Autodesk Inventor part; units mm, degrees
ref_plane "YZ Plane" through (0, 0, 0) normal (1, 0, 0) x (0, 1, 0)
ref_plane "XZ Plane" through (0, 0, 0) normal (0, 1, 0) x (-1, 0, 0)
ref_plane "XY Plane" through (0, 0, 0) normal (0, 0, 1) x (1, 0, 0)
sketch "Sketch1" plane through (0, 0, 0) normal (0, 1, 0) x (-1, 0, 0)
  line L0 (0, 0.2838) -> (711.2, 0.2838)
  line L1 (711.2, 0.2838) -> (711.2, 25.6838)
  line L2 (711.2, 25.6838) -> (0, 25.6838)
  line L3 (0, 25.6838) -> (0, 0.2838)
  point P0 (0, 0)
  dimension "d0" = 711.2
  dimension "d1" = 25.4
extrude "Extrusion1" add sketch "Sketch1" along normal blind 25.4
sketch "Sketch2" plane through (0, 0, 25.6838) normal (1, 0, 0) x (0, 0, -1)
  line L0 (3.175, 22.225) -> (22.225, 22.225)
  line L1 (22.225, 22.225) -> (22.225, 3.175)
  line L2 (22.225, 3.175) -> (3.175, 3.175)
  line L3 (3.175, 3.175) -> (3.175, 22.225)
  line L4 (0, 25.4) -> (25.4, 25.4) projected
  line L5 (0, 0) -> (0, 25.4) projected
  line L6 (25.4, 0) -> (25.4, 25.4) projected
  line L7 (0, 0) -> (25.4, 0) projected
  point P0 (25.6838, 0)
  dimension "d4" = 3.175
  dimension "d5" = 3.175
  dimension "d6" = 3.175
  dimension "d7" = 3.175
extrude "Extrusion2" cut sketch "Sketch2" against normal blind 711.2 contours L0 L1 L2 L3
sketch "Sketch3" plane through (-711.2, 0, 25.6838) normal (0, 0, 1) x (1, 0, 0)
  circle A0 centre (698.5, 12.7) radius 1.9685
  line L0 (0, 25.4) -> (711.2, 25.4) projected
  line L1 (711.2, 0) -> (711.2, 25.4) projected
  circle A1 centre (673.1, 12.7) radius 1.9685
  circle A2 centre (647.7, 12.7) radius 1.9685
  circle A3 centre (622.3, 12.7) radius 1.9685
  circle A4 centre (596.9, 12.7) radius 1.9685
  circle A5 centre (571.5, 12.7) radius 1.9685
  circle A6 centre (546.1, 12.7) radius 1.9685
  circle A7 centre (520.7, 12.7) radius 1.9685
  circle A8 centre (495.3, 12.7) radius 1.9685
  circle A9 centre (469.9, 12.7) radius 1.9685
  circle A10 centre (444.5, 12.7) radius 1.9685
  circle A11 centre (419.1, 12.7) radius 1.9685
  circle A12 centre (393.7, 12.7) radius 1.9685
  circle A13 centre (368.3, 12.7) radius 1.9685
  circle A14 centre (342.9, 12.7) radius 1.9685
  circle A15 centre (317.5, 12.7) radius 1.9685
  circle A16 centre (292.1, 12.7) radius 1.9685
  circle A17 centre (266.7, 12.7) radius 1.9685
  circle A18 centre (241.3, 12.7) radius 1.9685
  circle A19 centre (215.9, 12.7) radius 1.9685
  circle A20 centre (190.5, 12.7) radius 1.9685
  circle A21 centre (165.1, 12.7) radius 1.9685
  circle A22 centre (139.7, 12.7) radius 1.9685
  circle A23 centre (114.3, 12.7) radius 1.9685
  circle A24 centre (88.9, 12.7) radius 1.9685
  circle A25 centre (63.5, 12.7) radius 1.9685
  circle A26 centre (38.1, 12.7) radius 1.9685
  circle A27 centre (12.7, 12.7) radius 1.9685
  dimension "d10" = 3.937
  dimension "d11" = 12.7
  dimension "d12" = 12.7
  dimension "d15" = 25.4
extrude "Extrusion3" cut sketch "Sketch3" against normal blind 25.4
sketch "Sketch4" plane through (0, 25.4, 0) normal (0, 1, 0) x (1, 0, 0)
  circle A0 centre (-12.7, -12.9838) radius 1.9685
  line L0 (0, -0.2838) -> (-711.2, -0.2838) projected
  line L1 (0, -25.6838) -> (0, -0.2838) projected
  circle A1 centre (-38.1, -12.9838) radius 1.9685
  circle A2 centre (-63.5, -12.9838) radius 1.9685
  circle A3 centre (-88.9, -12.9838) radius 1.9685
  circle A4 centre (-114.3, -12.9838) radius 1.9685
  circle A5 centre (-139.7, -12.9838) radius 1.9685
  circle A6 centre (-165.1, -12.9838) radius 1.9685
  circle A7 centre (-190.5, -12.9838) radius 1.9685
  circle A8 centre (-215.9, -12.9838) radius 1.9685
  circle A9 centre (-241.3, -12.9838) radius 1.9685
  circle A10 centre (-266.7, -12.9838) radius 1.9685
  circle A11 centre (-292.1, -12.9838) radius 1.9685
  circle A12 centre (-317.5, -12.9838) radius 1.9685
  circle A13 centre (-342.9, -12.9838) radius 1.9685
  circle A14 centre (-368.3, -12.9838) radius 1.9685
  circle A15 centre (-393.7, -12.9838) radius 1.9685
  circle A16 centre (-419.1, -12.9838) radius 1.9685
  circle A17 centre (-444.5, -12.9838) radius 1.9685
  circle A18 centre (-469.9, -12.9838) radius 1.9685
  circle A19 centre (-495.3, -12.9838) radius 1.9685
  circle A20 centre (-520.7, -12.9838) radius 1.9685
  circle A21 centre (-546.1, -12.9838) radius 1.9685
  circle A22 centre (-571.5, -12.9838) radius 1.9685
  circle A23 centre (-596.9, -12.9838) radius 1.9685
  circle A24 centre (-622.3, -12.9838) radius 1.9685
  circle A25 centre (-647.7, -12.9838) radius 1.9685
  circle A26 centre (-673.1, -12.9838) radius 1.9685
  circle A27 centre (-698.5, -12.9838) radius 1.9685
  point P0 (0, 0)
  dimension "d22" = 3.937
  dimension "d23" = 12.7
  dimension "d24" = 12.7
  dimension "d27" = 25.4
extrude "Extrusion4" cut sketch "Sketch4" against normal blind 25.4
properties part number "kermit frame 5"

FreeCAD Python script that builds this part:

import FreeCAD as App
import Part
import Sketcher

V = App.Vector
Q = App.Units.Quantity


def add_polygon(sketch, points):
    """Adds a closed chain of lines whose ends are joined by coincident constraints."""
    first, n = sketch.GeometryCount, len(points)
    for a, b in zip(points, points[1:] + points[:1]):
        sketch.addGeometry(Part.LineSegment(App.Vector(*a, 0), App.Vector(*b, 0)), False)
    for i in range(n):
        sketch.addConstraint(Sketcher.Constraint("Coincident", first + i, 2, first + (i + 1) % n, 1))

doc = App.newDocument("Part")
body = doc.addObject("PartDesign::Body", "Body")

# Sketch on XZ plane
sketch1 = body.newObject("Sketcher::SketchObject", "Sketch")
sketch1.AttachmentSupport = (doc.getObject("XZ_Plane"), [""])
sketch1.MapMode = "FlatFace"
add_polygon(sketch1, [(0, 25.6838), (0, 0.2838), (-711.2, 0.2838), (-711.2, 25.6838)])  # lines 0-3
sketch1.addConstraint([
    Sketcher.Constraint("Vertical", 0),
    Sketcher.Constraint("Horizontal", 1),
    Sketcher.Constraint("Vertical", 2),
    Sketcher.Constraint("Horizontal", 3),
    Sketcher.Constraint("PointOnObject", 0, 2, -2),
    Sketcher.Constraint("DistanceX", 1, 2, 1, 1, Q("28 in")),
    Sketcher.Constraint("DistanceY", 0, 2, 0, 1, Q("1 in")),
    Sketcher.Constraint("DistanceY", -1, 1, 0, 2, Q("0.2838 mm")),
])
pad1 = body.newObject("PartDesign::Pad", "Pad")
pad1.Profile = sketch1
pad1.Length = Q("1 in")
pad1.Reversed = True

# Sketch on YZ plane
sketch2 = body.newObject("Sketcher::SketchObject", "Sketch001")
sketch2.AttachmentSupport = (doc.getObject("YZ_Plane"), [""])
sketch2.MapMode = "FlatFace"
add_polygon(sketch2, [(22.225, 3.4588), (22.225, 22.5088), (3.175, 22.5088), (3.175, 3.4588)])  # lines 0-3
sketch2.addConstraint([
    Sketcher.Constraint("Vertical", 0),
    Sketcher.Constraint("Horizontal", 1),
    Sketcher.Constraint("Vertical", 2),
    Sketcher.Constraint("Horizontal", 3),
    Sketcher.Constraint("Equal", 3, 0),
    Sketcher.Constraint("DistanceX", -1, 1, 1, 2, Q("0.125 in")),
    Sketcher.Constraint("DistanceX", 1, 2, 1, 1, Q("0.75 in")),
    Sketcher.Constraint("DistanceY", -1, 1, 0, 2, Q("22.5088 mm")),
])
pocket1 = body.newObject("PartDesign::Pocket", "Pocket")
pocket1.Profile = sketch2
pocket1.Length = Q("28 in")

# Sketch on XY plane
sketch3 = body.newObject("Sketcher::SketchObject", "Sketch002")
sketch3.AttachmentSupport = (doc.getObject("XY_Plane"), [""])
sketch3.MapMode = "FlatFace"
sketch3.AttachmentOffset = App.Placement(V(0, 0, 25.6838), App.Rotation())
sketch3.addGeometry([
    Part.Circle(V(-12.7, 12.7, 0), V(0, 0, 1), 1.9685),  # 0
    Part.Circle(V(-38.1, 12.7, 0), V(0, 0, 1), 1.9685),  # 1
    Part.Circle(V(-63.5, 12.7, 0), V(0, 0, 1), 1.9685),  # 2
    Part.Circle(V(-88.9, 12.7, 0), V(0, 0, 1), 1.9685),  # 3
    Part.Circle(V(-114.3, 12.7, 0), V(0, 0, 1), 1.9685),  # 4
    Part.Circle(V(-139.7, 12.7, 0), V(0, 0, 1), 1.9685),  # 5
    Part.Circle(V(-165.1, 12.7, 0), V(0, 0, 1), 1.9685),  # 6
    Part.Circle(V(-190.5, 12.7, 0), V(0, 0, 1), 1.9685),  # 7
    Part.Circle(V(-215.9, 12.7, 0), V(0, 0, 1), 1.9685),  # 8
    Part.Circle(V(-241.3, 12.7, 0), V(0, 0, 1), 1.9685),  # 9
    Part.Circle(V(-266.7, 12.7, 0), V(0, 0, 1), 1.9685),  # 10
    Part.Circle(V(-292.1, 12.7, 0), V(0, 0, 1), 1.9685),  # 11
    Part.Circle(V(-317.5, 12.7, 0), V(0, 0, 1), 1.9685),  # 12
    Part.Circle(V(-342.9, 12.7, 0), V(0, 0, 1), 1.9685),  # 13
    Part.Circle(V(-368.3, 12.7, 0), V(0, 0, 1), 1.9685),  # 14
    Part.Circle(V(-393.7, 12.7, 0), V(0, 0, 1), 1.9685),  # 15
    Part.Circle(V(-419.1, 12.7, 0), V(0, 0, 1), 1.9685),  # 16
    Part.Circle(V(-444.5, 12.7, 0), V(0, 0, 1), 1.9685),  # 17
    Part.Circle(V(-469.9, 12.7, 0), V(0, 0, 1), 1.9685),  # 18
    Part.Circle(V(-495.3, 12.7, 0), V(0, 0, 1), 1.9685),  # 19
    Part.Circle(V(-520.7, 12.7, 0), V(0, 0, 1), 1.9685),  # 20
    Part.Circle(V(-546.1, 12.7, 0), V(0, 0, 1), 1.9685),  # 21
    Part.Circle(V(-571.5, 12.7, 0), V(0, 0, 1), 1.9685),  # 22
    Part.Circle(V(-596.9, 12.7, 0), V(0, 0, 1), 1.9685),  # 23
    Part.Circle(V(-622.3, 12.7, 0), V(0, 0, 1), 1.9685),  # 24
    Part.Circle(V(-647.7, 12.7, 0), V(0, 0, 1), 1.9685),  # 25
    Part.Circle(V(-673.1, 12.7, 0), V(0, 0, 1), 1.9685),  # 26
    Part.Circle(V(-698.5, 12.7, 0), V(0, 0, 1), 1.9685),  # 27
], False)
sketch3.addConstraint([
    Sketcher.Constraint("Equal", 0, 1),
    Sketcher.Constraint("Equal", 1, 2),
    Sketcher.Constraint("Equal", 2, 3),
    Sketcher.Constraint("Equal", 3, 4),
    Sketcher.Constraint("Equal", 4, 5),
    Sketcher.Constraint("Equal", 5, 6),
    Sketcher.Constraint("Equal", 6, 7),
    Sketcher.Constraint("Equal", 7, 8),
    Sketcher.Constraint("Equal", 8, 9),
    Sketcher.Constraint("Equal", 9, 10),
    Sketcher.Constraint("Equal", 10, 11),
    Sketcher.Constraint("Equal", 11, 12),
    Sketcher.Constraint("Equal", 12, 13),
    Sketcher.Constraint("Equal", 13, 14),
    Sketcher.Constraint("Equal", 14, 15),
    Sketcher.Constraint("Equal", 15, 16),
    Sketcher.Constraint("Equal", 16, 17),
    Sketcher.Constraint("Equal", 17, 18),
    Sketcher.Constraint("Equal", 18, 19),
    Sketcher.Constraint("Equal", 19, 20),
    Sketcher.Constraint("Equal", 20, 21),
    Sketcher.Constraint("Equal", 21, 22),
    Sketcher.Constraint("Equal", 22, 23),
    Sketcher.Constraint("Equal", 23, 24),
    Sketcher.Constraint("Equal", 24, 25),
    Sketcher.Constraint("Equal", 25, 26),
    Sketcher.Constraint("Equal", 26, 27),
    Sketcher.Constraint("Horizontal", 0, 3, 1, 3),
    Sketcher.Constraint("Horizontal", 1, 3, 2, 3),
    Sketcher.Constraint("Horizontal", 2, 3, 3, 3),
    Sketcher.Constraint("Horizontal", 3, 3, 4, 3),
    Sketcher.Constraint("Horizontal", 4, 3, 5, 3),
    Sketcher.Constraint("Horizontal", 5, 3, 6, 3),
    Sketcher.Constraint("Horizontal", 6, 3, 7, 3),
    Sketcher.Constraint("Horizontal", 7, 3, 8, 3),
    Sketcher.Constraint("Horizontal", 8, 3, 9, 3),
    Sketcher.Constraint("Horizontal", 9, 3, 10, 3),
    Sketcher.Constraint("Horizontal", 10, 3, 11, 3),
    Sketcher.Constraint("Horizontal", 11, 3, 12, 3),
    Sketcher.Constraint("Horizontal", 12, 3, 13, 3),
    Sketcher.Constraint("Horizontal", 13, 3, 14, 3),
    Sketcher.Constraint("Horizontal", 14, 3, 15, 3),
    Sketcher.Constraint("Horizontal", 15, 3, 16, 3),
    Sketcher.Constraint("Horizontal", 16, 3, 17, 3),
    Sketcher.Constraint("Horizontal", 17, 3, 18, 3),
    Sketcher.Constraint("Horizontal", 18, 3, 19, 3),
    Sketcher.Constraint("Horizontal", 19, 3, 20, 3),
    Sketcher.Constraint("Horizontal", 20, 3, 21, 3),
    Sketcher.Constraint("Horizontal", 21, 3, 22, 3),
    Sketcher.Constraint("Horizontal", 22, 3, 23, 3),
    Sketcher.Constraint("Horizontal", 23, 3, 24, 3),
    Sketcher.Constraint("Horizontal", 24, 3, 25, 3),
    Sketcher.Constraint("Horizontal", 25, 3, 26, 3),
    Sketcher.Constraint("Horizontal", 26, 3, 27, 3),
    Sketcher.Constraint("Diameter", 0, Q("0.155 in")),
    Sketcher.Constraint("DistanceX", 1, 3, 0, 3, Q("1 in")),
    Sketcher.Constraint("DistanceX", 2, 3, 1, 3, Q("1 in")),
    Sketcher.Constraint("DistanceX", 3, 3, 2, 3, Q("1 in")),
    Sketcher.Constraint("DistanceX", 4, 3, 3, 3, Q("1 in")),
    Sketcher.Constraint("DistanceX", 5, 3, 4, 3, Q("1 in")),
    Sketcher.Constraint("DistanceX", 6, 3, 5, 3, Q("1 in")),
    Sketcher.Constraint("DistanceX", 7, 3, 6, 3, Q("1 in")),
    Sketcher.Constraint("DistanceX", 8, 3, 7, 3, Q("1 in")),
    Sketcher.Constraint("DistanceX", 9, 3, 8, 3, Q("1 in")),
    Sketcher.Constraint("DistanceX", 10, 3, 9, 3, Q("1 in")),
    Sketcher.Constraint("DistanceX", 11, 3, 10, 3, Q("1 in")),
    Sketcher.Constraint("DistanceX", 12, 3, 11, 3, Q("1 in")),
    Sketcher.Constraint("DistanceX", 13, 3, 12, 3, Q("1 in")),
    Sketcher.Constraint("DistanceX", 14, 3, 13, 3, Q("1 in")),
    Sketcher.Constraint("DistanceX", 15, 3, 14, 3, Q("1 in")),
    Sketcher.Constraint("DistanceX", 16, 3, 15, 3, Q("1 in")),
    Sketcher.Constraint("DistanceX", 17, 3, 16, 3, Q("1 in")),
    Sketcher.Constraint("DistanceX", 18, 3, 17, 3, Q("1 in")),
    Sketcher.Constraint("DistanceX", 19, 3, 18, 3, Q("1 in")),
    Sketcher.Constraint("DistanceX", 20, 3, 19, 3, Q("1 in")),
    Sketcher.Constraint("DistanceX", 21, 3, 20, 3, Q("1 in")),
    Sketcher.Constraint("DistanceX", 22, 3, 21, 3, Q("1 in")),
    Sketcher.Constraint("DistanceX", 23, 3, 22, 3, Q("1 in")),
    Sketcher.Constraint("DistanceX", 24, 3, 23, 3, Q("1 in")),
    Sketcher.Constraint("DistanceX", 25, 3, 24, 3, Q("1 in")),
    Sketcher.Constraint("DistanceX", 26, 3, 25, 3, Q("1 in")),
    Sketcher.Constraint("DistanceX", 27, 3, 26, 3, Q("1 in")),
    Sketcher.Constraint("DistanceX", 0, 3, -1, 1, Q("0.5 in")),
    Sketcher.Constraint("DistanceY", -1, 1, 0, 3, Q("0.5 in")),
])
pocket2 = body.newObject("PartDesign::Pocket", "Pocket001")
pocket2.Profile = sketch3
pocket2.Length = Q("1 in")

# Sketch on XZ plane
sketch4 = body.newObject("Sketcher::SketchObject", "Sketch003")
sketch4.AttachmentSupport = (doc.getObject("XZ_Plane"), [""])
sketch4.MapMode = "FlatFace"
sketch4.AttachmentOffset = App.Placement(V(0, 0, -1 * 25.4), App.Rotation())
sketch4.addGeometry([
    Part.Circle(V(-12.7, 12.9838, 0), V(0, 0, 1), 1.9685),  # 0
    Part.Circle(V(-38.1, 12.9838, 0), V(0, 0, 1), 1.9685),  # 1
    Part.Circle(V(-63.5, 12.9838, 0), V(0, 0, 1), 1.9685),  # 2
    Part.Circle(V(-88.9, 12.9838, 0), V(0, 0, 1), 1.9685),  # 3
    Part.Circle(V(-114.3, 12.9838, 0), V(0, 0, 1), 1.9685),  # 4
    Part.Circle(V(-139.7, 12.9838, 0), V(0, 0, 1), 1.9685),  # 5
    Part.Circle(V(-165.1, 12.9838, 0), V(0, 0, 1), 1.9685),  # 6
    Part.Circle(V(-190.5, 12.9838, 0), V(0, 0, 1), 1.9685),  # 7
    Part.Circle(V(-215.9, 12.9838, 0), V(0, 0, 1), 1.9685),  # 8
    Part.Circle(V(-241.3, 12.9838, 0), V(0, 0, 1), 1.9685),  # 9
    Part.Circle(V(-266.7, 12.9838, 0), V(0, 0, 1), 1.9685),  # 10
    Part.Circle(V(-292.1, 12.9838, 0), V(0, 0, 1), 1.9685),  # 11
    Part.Circle(V(-317.5, 12.9838, 0), V(0, 0, 1), 1.9685),  # 12
    Part.Circle(V(-342.9, 12.9838, 0), V(0, 0, 1), 1.9685),  # 13
    Part.Circle(V(-368.3, 12.9838, 0), V(0, 0, 1), 1.9685),  # 14
    Part.Circle(V(-393.7, 12.9838, 0), V(0, 0, 1), 1.9685),  # 15
    Part.Circle(V(-419.1, 12.9838, 0), V(0, 0, 1), 1.9685),  # 16
    Part.Circle(V(-444.5, 12.9838, 0), V(0, 0, 1), 1.9685),  # 17
    Part.Circle(V(-469.9, 12.9838, 0), V(0, 0, 1), 1.9685),  # 18
    Part.Circle(V(-495.3, 12.9838, 0), V(0, 0, 1), 1.9685),  # 19
    Part.Circle(V(-520.7, 12.9838, 0), V(0, 0, 1), 1.9685),  # 20
    Part.Circle(V(-546.1, 12.9838, 0), V(0, 0, 1), 1.9685),  # 21
    Part.Circle(V(-571.5, 12.9838, 0), V(0, 0, 1), 1.9685),  # 22
    Part.Circle(V(-596.9, 12.9838, 0), V(0, 0, 1), 1.9685),  # 23
    Part.Circle(V(-622.3, 12.9838, 0), V(0, 0, 1), 1.9685),  # 24
    Part.Circle(V(-647.7, 12.9838, 0), V(0, 0, 1), 1.9685),  # 25
    Part.Circle(V(-673.1, 12.9838, 0), V(0, 0, 1), 1.9685),  # 26
    Part.Circle(V(-698.5, 12.9838, 0), V(0, 0, 1), 1.9685),  # 27
], False)
sketch4.addConstraint([
    Sketcher.Constraint("Equal", 0, 1),
    Sketcher.Constraint("Equal", 1, 2),
    Sketcher.Constraint("Equal", 2, 3),
    Sketcher.Constraint("Equal", 3, 4),
    Sketcher.Constraint("Equal", 4, 5),
    Sketcher.Constraint("Equal", 5, 6),
    Sketcher.Constraint("Equal", 6, 7),
    Sketcher.Constraint("Equal", 7, 8),
    Sketcher.Constraint("Equal", 8, 9),
    Sketcher.Constraint("Equal", 9, 10),
    Sketcher.Constraint("Equal", 10, 11),
    Sketcher.Constraint("Equal", 11, 12),
    Sketcher.Constraint("Equal", 12, 13),
    Sketcher.Constraint("Equal", 13, 14),
    Sketcher.Constraint("Equal", 14, 15),
    Sketcher.Constraint("Equal", 15, 16),
    Sketcher.Constraint("Equal", 16, 17),
    Sketcher.Constraint("Equal", 17, 18),
    Sketcher.Constraint("Equal", 18, 19),
    Sketcher.Constraint("Equal", 19, 20),
    Sketcher.Constraint("Equal", 20, 21),
    Sketcher.Constraint("Equal", 21, 22),
    Sketcher.Constraint("Equal", 22, 23),
    Sketcher.Constraint("Equal", 23, 24),
    Sketcher.Constraint("Equal", 24, 25),
    Sketcher.Constraint("Equal", 25, 26),
    Sketcher.Constraint("Equal", 26, 27),
    Sketcher.Constraint("Horizontal", 0, 3, 1, 3),
    Sketcher.Constraint("Horizontal", 1, 3, 2, 3),
    Sketcher.Constraint("Horizontal", 2, 3, 3, 3),
    Sketcher.Constraint("Horizontal", 3, 3, 4, 3),
    Sketcher.Constraint("Horizontal", 4, 3, 5, 3),
    Sketcher.Constraint("Horizontal", 5, 3, 6, 3),
    Sketcher.Constraint("Horizontal", 6, 3, 7, 3),
    Sketcher.Constraint("Horizontal", 7, 3, 8, 3),
    Sketcher.Constraint("Horizontal", 8, 3, 9, 3),
    Sketcher.Constraint("Horizontal", 9, 3, 10, 3),
    Sketcher.Constraint("Horizontal", 10, 3, 11, 3),
    Sketcher.Constraint("Horizontal", 11, 3, 12, 3),
    Sketcher.Constraint("Horizontal", 12, 3, 13, 3),
    Sketcher.Constraint("Horizontal", 13, 3, 14, 3),
    Sketcher.Constraint("Horizontal", 14, 3, 15, 3),
    Sketcher.Constraint("Horizontal", 15, 3, 16, 3),
    Sketcher.Constraint("Horizontal", 16, 3, 17, 3),
    Sketcher.Constraint("Horizontal", 17, 3, 18, 3),
    Sketcher.Constraint("Horizontal", 18, 3, 19, 3),
    Sketcher.Constraint("Horizontal", 19, 3, 20, 3),
    Sketcher.Constraint("Horizontal", 20, 3, 21, 3),
    Sketcher.Constraint("Horizontal", 21, 3, 22, 3),
    Sketcher.Constraint("Horizontal", 22, 3, 23, 3),
    Sketcher.Constraint("Horizontal", 23, 3, 24, 3),
    Sketcher.Constraint("Horizontal", 24, 3, 25, 3),
    Sketcher.Constraint("Horizontal", 25, 3, 26, 3),
    Sketcher.Constraint("Horizontal", 26, 3, 27, 3),
    Sketcher.Constraint("Diameter", 0, Q("0.155 in")),
    Sketcher.Constraint("DistanceX", 1, 3, 0, 3, Q("1 in")),
    Sketcher.Constraint("DistanceX", 2, 3, 1, 3, Q("1 in")),
    Sketcher.Constraint("DistanceX", 3, 3, 2, 3, Q("1 in")),
    Sketcher.Constraint("DistanceX", 4, 3, 3, 3, Q("1 in")),
    Sketcher.Constraint("DistanceX", 5, 3, 4, 3, Q("1 in")),
    Sketcher.Constraint("DistanceX", 6, 3, 5, 3, Q("1 in")),
    Sketcher.Constraint("DistanceX", 7, 3, 6, 3, Q("1 in")),
    Sketcher.Constraint("DistanceX", 8, 3, 7, 3, Q("1 in")),
    Sketcher.Constraint("DistanceX", 9, 3, 8, 3, Q("1 in")),
    Sketcher.Constraint("DistanceX", 10, 3, 9, 3, Q("1 in")),
    Sketcher.Constraint("DistanceX", 11, 3, 10, 3, Q("1 in")),
    Sketcher.Constraint("DistanceX", 12, 3, 11, 3, Q("1 in")),
    Sketcher.Constraint("DistanceX", 13, 3, 12, 3, Q("1 in")),
    Sketcher.Constraint("DistanceX", 14, 3, 13, 3, Q("1 in")),
    Sketcher.Constraint("DistanceX", 15, 3, 14, 3, Q("1 in")),
    Sketcher.Constraint("DistanceX", 16, 3, 15, 3, Q("1 in")),
    Sketcher.Constraint("DistanceX", 17, 3, 16, 3, Q("1 in")),
    Sketcher.Constraint("DistanceX", 18, 3, 17, 3, Q("1 in")),
    Sketcher.Constraint("DistanceX", 19, 3, 18, 3, Q("1 in")),
    Sketcher.Constraint("DistanceX", 20, 3, 19, 3, Q("1 in")),
    Sketcher.Constraint("DistanceX", 21, 3, 20, 3, Q("1 in")),
    Sketcher.Constraint("DistanceX", 22, 3, 21, 3, Q("1 in")),
    Sketcher.Constraint("DistanceX", 23, 3, 22, 3, Q("1 in")),
    Sketcher.Constraint("DistanceX", 24, 3, 23, 3, Q("1 in")),
    Sketcher.Constraint("DistanceX", 25, 3, 24, 3, Q("1 in")),
    Sketcher.Constraint("DistanceX", 26, 3, 25, 3, Q("1 in")),
    Sketcher.Constraint("DistanceX", 27, 3, 26, 3, Q("1 in")),
    Sketcher.Constraint("DistanceX", 0, 3, -1, 1, Q("0.5 in")),
    Sketcher.Constraint("DistanceY", -1, 1, 0, 3, Q("12.9838 mm")),
])
pocket3 = body.newObject("PartDesign::Pocket", "Pocket002")
pocket3.Profile = sketch4
pocket3.Length = Q("1 in")
pocket3.Reversed = True

doc.recompute()
